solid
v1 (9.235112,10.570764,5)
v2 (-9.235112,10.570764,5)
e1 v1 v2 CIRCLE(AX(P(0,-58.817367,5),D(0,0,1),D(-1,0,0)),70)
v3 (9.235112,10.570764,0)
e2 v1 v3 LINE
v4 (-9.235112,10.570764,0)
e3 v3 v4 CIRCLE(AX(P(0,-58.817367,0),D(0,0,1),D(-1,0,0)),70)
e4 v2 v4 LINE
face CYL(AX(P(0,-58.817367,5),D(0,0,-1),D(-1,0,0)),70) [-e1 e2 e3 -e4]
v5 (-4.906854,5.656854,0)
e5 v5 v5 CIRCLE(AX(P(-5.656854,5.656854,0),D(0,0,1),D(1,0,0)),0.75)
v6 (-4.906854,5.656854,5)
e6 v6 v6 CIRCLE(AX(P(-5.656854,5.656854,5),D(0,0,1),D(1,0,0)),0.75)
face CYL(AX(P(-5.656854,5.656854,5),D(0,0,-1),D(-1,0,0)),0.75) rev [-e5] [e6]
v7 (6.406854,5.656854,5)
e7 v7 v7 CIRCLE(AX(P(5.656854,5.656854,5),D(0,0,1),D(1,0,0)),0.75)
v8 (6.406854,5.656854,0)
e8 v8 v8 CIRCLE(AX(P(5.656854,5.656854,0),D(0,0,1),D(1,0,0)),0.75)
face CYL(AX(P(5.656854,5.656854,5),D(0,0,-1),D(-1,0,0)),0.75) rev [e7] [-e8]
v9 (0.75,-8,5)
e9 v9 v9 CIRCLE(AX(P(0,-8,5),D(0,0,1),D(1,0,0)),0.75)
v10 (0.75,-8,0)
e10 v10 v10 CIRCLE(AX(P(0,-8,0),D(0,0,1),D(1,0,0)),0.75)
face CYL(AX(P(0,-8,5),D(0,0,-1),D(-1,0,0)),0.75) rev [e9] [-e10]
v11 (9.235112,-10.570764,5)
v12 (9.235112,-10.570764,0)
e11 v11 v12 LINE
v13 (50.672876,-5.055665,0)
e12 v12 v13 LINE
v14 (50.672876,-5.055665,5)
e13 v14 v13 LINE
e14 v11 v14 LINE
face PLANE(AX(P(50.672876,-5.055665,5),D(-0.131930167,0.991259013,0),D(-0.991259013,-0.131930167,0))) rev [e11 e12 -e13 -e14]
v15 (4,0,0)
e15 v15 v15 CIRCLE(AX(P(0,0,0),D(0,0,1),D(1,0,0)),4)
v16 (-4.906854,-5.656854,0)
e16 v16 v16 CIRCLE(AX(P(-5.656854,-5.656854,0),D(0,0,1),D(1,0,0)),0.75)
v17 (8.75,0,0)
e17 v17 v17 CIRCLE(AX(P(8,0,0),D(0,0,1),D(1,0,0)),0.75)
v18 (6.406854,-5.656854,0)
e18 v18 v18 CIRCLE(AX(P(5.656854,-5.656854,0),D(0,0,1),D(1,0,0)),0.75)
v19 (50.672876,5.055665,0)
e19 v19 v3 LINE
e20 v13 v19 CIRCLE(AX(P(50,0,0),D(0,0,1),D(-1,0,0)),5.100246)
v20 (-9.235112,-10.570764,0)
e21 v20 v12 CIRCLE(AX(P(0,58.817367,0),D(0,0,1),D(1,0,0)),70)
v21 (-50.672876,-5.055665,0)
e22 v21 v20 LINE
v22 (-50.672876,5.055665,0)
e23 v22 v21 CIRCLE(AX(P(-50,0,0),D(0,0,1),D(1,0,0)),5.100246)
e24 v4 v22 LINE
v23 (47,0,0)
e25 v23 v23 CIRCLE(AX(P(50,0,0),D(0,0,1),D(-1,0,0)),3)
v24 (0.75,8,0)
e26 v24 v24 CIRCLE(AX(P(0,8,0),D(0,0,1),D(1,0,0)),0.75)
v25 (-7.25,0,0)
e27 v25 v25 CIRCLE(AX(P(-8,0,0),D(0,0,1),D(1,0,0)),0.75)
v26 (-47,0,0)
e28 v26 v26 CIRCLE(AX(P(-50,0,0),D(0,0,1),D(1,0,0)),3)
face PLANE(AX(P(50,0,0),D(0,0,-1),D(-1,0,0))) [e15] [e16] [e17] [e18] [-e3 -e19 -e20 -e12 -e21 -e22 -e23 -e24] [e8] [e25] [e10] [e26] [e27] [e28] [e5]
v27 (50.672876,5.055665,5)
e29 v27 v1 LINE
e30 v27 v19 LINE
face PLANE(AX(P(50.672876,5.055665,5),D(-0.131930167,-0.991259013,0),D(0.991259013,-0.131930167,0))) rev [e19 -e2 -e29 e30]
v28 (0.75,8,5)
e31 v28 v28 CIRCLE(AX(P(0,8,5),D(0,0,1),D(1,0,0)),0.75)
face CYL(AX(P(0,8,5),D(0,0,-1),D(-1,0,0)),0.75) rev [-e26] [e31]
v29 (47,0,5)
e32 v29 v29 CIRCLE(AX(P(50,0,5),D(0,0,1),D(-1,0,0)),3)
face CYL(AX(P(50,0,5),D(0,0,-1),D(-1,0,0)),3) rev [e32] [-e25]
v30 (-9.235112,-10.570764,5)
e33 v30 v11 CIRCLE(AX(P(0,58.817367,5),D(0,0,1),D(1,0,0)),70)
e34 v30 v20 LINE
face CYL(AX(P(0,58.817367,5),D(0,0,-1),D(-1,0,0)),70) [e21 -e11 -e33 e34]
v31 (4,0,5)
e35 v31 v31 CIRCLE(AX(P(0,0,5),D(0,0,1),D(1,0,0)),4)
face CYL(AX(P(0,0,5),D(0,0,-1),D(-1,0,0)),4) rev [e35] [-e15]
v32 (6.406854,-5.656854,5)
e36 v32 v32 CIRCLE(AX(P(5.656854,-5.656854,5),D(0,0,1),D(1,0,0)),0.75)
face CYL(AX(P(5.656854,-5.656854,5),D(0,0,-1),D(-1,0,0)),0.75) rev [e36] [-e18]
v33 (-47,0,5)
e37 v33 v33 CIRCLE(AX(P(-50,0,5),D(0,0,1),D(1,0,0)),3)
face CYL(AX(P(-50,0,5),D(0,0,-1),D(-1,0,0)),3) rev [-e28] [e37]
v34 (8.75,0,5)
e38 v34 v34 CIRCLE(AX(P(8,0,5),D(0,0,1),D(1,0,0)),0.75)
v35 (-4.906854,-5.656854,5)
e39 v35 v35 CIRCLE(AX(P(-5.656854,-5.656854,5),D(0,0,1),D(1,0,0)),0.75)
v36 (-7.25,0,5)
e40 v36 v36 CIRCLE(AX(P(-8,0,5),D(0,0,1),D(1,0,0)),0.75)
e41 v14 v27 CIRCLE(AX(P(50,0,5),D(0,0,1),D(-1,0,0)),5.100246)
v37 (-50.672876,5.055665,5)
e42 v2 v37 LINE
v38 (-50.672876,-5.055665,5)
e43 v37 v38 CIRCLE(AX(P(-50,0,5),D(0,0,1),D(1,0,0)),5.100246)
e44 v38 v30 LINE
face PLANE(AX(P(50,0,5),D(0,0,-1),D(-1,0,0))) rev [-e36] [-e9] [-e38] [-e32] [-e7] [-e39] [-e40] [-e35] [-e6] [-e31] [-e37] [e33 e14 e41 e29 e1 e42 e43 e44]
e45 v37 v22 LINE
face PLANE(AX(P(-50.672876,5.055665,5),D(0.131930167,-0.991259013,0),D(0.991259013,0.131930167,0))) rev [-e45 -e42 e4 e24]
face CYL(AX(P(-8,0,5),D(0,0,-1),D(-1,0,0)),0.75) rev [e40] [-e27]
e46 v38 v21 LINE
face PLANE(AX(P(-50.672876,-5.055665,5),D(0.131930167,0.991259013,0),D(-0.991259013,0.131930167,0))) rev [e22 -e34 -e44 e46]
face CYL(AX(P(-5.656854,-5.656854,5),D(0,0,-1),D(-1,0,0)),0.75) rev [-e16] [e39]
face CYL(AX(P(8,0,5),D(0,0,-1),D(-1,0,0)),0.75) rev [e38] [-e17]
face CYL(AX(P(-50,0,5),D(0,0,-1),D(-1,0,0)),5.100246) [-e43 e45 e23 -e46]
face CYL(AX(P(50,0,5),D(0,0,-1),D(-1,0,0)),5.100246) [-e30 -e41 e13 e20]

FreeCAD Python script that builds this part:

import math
import FreeCAD as App
import Part
import Sketcher
Q = App.Units.Quantity

doc = App.newDocument("Part")
params = doc.addObject("Spreadsheet::Sheet", "Params")
for row, (alias, value) in enumerate([
    ("sketch1_diameter", "6 mm"),
    ("sketch1_diameter2", "8 mm"),
    ("sketch1_radius", "70 mm"),
    ("sketch1_diameter3", "1.5 mm"),
    ("pad1_length", "5 mm"),
], start=1):
    params.set(f"A{row}", alias)
    params.set(f"B{row}", "=" + value)
    params.setAlias(f"B{row}", alias)

body = doc.addObject("PartDesign::Body", "Body")

# Sketch on XY plane
sketch1 = doc.addObject("Sketcher::SketchObject", "Sketch")
body.addObject(sketch1)
sketch1.AttachmentSupport = (doc.XY_Plane, [""])
sketch1.MapMode = "FlatFace"
sketch1.addGeometry([
    Part.LineSegment(App.Vector(-9.2, 10.6, 0), App.Vector(-50.7, 5.1, 0)),  # 0
    Part.ArcOfCircle(Part.Circle(App.Vector(-50, 0, 0), App.Vector(0, 0, 1), 5.1), math.radians(98), math.radians(262)),  # 1
    Part.LineSegment(App.Vector(-50.7, -5.1, 0), App.Vector(-9.2, -10.6, 0)),  # 2
    Part.ArcOfCircle(Part.Circle(App.Vector(0, 58.8, 0), App.Vector(0, 0, 1), 70), math.radians(-97.58), math.radians(-82.42)),  # 3
    Part.LineSegment(App.Vector(9.2, -10.6, 0), App.Vector(50.7, -5.1, 0)),  # 4
    Part.ArcOfCircle(Part.Circle(App.Vector(50, 0, 0), App.Vector(0, 0, 1), 5.1), math.radians(-82), math.radians(82)),  # 5
    Part.LineSegment(App.Vector(50.7, 5.1, 0), App.Vector(9.2, 10.6, 0)),  # 6
    Part.ArcOfCircle(Part.Circle(App.Vector(0, -58.8, 0), App.Vector(0, 0, 1), 70), math.radians(82.42), math.radians(97.58)),  # 7
    Part.Circle(App.Vector(5.7, -5.7, 0), App.Vector(0, 0, 1), 0.8),  # 8
    Part.Circle(App.Vector(0, -8, 0), App.Vector(0, 0, 1), 0.8),  # 9
    Part.Circle(App.Vector(-5.7, -5.7, 0), App.Vector(0, 0, 1), 0.8),  # 10
    Part.Circle(App.Vector(50, 0, 0), App.Vector(0, 0, 1), 3),  # 11
    Part.Circle(App.Vector(8, 0, 0), App.Vector(0, 0, 1), 0.8),  # 12
    Part.Circle(App.Vector(5.7, 5.7, 0), App.Vector(0, 0, 1), 0.8),  # 13
    Part.Circle(App.Vector(0, 0, 0), App.Vector(0, 0, 1), 4),  # 14
    Part.Circle(App.Vector(-8, 0, 0), App.Vector(0, 0, 1), 0.8),  # 15
    Part.Circle(App.Vector(-50, 0, 0), App.Vector(0, 0, 1), 3),  # 16
    Part.Circle(App.Vector(-5.7, 5.7, 0), App.Vector(0, 0, 1), 0.8),  # 17
    Part.Circle(App.Vector(0, 8, 0), App.Vector(0, 0, 1), 0.8),  # 18
], False)
sketch1.addConstraint([
    Sketcher.Constraint("Tangent", 0, 2, 1, 1),
    Sketcher.Constraint("Tangent", 1, 2, 2, 1),
    Sketcher.Constraint("Tangent", 2, 2, 3, 1),
    Sketcher.Constraint("Tangent", 3, 2, 4, 1),
    Sketcher.Constraint("Tangent", 4, 2, 5, 1),
    Sketcher.Constraint("Tangent", 5, 2, 6, 1),
    Sketcher.Constraint("Tangent", 6, 2, 7, 1),
    Sketcher.Constraint("Tangent", 7, 2, 0, 1),
    Sketcher.Constraint("Coincident", 14, 3, -1, 1),
    Sketcher.Constraint("Coincident", 11, 3, 5, 3),
    Sketcher.Constraint("Coincident", 16, 3, 1, 3),
    Sketcher.Constraint("Equal", 1, 5),
    Sketcher.Constraint("Equal", 3, 7),
    Sketcher.Constraint("Equal", 8, 9),
    Sketcher.Constraint("Equal", 9, 10),
    Sketcher.Constraint("Equal", 10, 12),
    Sketcher.Constraint("Equal", 12, 13),
    Sketcher.Constraint("Equal", 13, 15),
    Sketcher.Constraint("Equal", 11, 16),
    Sketcher.Constraint("Equal", 15, 17),
    Sketcher.Constraint("Equal", 17, 18),
    Sketcher.Constraint("Symmetric", 1, 3, 5, 3, -1, 1),
    Sketcher.Constraint("Symmetric", 3, 3, 7, 3, -1, 1),
    Sketcher.Constraint("Symmetric", 10, 3, 13, 3, -1, 1),
    Sketcher.Constraint("Symmetric", 12, 3, 15, 3, -1, 1),
    Sketcher.Constraint("Symmetric", 8, 3, 17, 3, -1, 1),
    Sketcher.Constraint("Symmetric", 9, 3, 18, 3, -1, 1),
    Sketcher.Constraint("Symmetric", 8, 3, 10, 3, -2),
    Sketcher.Constraint("Symmetric", 2, 2, 3, 2, -2),
    Sketcher.Constraint("PointOnObject", 9, 3, -2),
    Sketcher.Constraint("PointOnObject", 12, 3, -1),
    Sketcher.Constraint("Diameter", 11, Q("6 mm")),
    Sketcher.Constraint("Diameter", 14, Q("8 mm")),
    Sketcher.Constraint("Radius", 3, Q("70 mm")),
    Sketcher.Constraint("Diameter", 8, Q("1.5 mm")),
    Sketcher.Constraint("DistanceX", 1, 3, -1, 1, Q("50 mm")),
    Sketcher.Constraint("DistanceY", 9, 3, -1, 1, Q("8 mm")),
    Sketcher.Constraint("DistanceX", -1, 1, 12, 3, Q("8 mm")),
    Sketcher.Constraint("Radius", 1, Q("5.100246 mm")),
    Sketcher.Constraint("DistanceY", 3, 2, 4, 2, Q("5.515099 mm")),
    Sketcher.Constraint("DistanceY", 8, 3, 3, 3, Q("64.474221 mm")),
    Sketcher.Constraint("DistanceX", 10, 3, 8, 3, Q("11.313708 mm")),
])
sketch1.setExpression("Constraints[31]", "Params.sketch1_diameter")
sketch1.setExpression("Constraints[32]", "Params.sketch1_diameter2")
sketch1.setExpression("Constraints[33]", "Params.sketch1_radius")
sketch1.setExpression("Constraints[34]", "Params.sketch1_diameter3")
pad1 = doc.addObject("PartDesign::Pad", "Pad")
body.addObject(pad1)
pad1.Profile = sketch1
pad1.setExpression("Length", "Params.pad1_length")

doc.recompute()
